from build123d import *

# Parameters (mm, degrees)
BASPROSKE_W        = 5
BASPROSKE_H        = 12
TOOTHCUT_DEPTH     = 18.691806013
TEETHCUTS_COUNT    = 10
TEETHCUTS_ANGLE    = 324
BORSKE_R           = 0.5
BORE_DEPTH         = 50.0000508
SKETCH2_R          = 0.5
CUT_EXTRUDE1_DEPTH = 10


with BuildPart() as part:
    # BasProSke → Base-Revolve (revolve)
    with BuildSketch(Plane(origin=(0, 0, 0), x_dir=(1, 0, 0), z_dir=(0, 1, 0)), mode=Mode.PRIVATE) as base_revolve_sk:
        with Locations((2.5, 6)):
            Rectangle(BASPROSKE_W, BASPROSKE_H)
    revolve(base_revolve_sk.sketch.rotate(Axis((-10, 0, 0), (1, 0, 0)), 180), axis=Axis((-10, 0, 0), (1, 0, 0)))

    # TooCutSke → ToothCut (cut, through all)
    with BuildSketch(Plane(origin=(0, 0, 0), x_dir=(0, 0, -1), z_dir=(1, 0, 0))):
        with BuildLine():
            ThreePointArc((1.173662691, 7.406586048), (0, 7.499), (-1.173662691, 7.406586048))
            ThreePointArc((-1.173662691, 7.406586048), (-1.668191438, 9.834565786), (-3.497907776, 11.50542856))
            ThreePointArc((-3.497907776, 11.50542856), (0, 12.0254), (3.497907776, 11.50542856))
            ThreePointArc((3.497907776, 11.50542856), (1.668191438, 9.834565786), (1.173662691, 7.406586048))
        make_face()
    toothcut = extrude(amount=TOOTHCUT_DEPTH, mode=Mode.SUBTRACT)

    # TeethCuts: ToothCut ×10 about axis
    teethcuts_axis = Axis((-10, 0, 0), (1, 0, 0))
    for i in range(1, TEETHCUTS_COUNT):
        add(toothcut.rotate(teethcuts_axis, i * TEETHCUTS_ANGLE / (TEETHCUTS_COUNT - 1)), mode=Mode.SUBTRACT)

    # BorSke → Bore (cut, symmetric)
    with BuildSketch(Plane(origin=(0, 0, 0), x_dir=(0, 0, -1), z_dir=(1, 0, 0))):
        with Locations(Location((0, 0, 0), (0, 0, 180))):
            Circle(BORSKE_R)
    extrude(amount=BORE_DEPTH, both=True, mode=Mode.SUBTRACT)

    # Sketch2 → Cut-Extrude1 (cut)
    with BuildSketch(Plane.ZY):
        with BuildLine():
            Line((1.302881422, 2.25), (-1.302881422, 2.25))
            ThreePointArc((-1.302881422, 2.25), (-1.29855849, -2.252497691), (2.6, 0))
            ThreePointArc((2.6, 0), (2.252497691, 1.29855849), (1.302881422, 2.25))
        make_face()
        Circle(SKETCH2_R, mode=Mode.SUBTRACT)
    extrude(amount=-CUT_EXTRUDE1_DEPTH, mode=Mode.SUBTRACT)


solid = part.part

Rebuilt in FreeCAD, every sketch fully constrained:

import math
import FreeCAD as App
import Part
import Sketcher


def add_polygon(sketch, points):
    """Adds a closed chain of lines whose ends are joined by coincident constraints."""
    first, n = sketch.GeometryCount, len(points)
    for a, b in zip(points, points[1:] + points[:1]):
        sketch.addGeometry(Part.LineSegment(App.Vector(*a, 0), App.Vector(*b, 0)), False)
    for i in range(n):
        sketch.addConstraint(Sketcher.Constraint("Coincident", first + i, 2, first + (i + 1) % n, 1))

doc = App.newDocument("Part")
body = doc.addObject("PartDesign::Body", "Body")

sketch1 = body.newObject("Sketcher::SketchObject", "Sketch")
sketch1.AttachmentSupport = (doc.getObject("XZ_Plane"), [""])
sketch1.MapMode = "FlatFace"
add_polygon(sketch1, [(0, -12), (0, 0), (5, 0), (5, -12)])
sketch1.addConstraint([
    Sketcher.Constraint("Vertical", 0),
    Sketcher.Constraint("Horizontal", 1),
    Sketcher.Constraint("Vertical", 2),
    Sketcher.Constraint("Horizontal", 3),
    Sketcher.Constraint("Coincident", 0, 2, -1, 1),
    Sketcher.Constraint("DistanceX", 1, 1, 1, 2, 5.0),
    Sketcher.Constraint("DistanceY", 0, 1, 0, 2, 12.0),
])
revolution = body.newObject("PartDesign::Revolution", "Revolution")
revolution.Profile = sketch1
revolution.ReferenceAxis = (sketch1, ["H_Axis"])
revolution.Angle = 360

sketch2 = body.newObject("Sketcher::SketchObject", "Sketch001")
sketch2.AttachmentSupport = (doc.getObject("YZ_Plane"), [""])
sketch2.MapMode = "FlatFace"
sketch2.addGeometry([
    Part.ArcOfCircle(Part.Circle(App.Vector(0, 0, 0), App.Vector(0, 0, 1), 7.499), math.radians(-9.004337), math.radians(9.004337)),
    Part.ArcOfCircle(Part.Circle(App.Vector(7.861508, -5.147709, 0), App.Vector(0, 0, 1), 4), math.radians(24.358856), math.radians(96.530411)),
    Part.ArcOfCircle(Part.Circle(App.Vector(0, 0, 0), App.Vector(0, 0, 1), 12.0254), math.radians(-16.910446), math.radians(16.910446)),
    Part.ArcOfCircle(Part.Circle(App.Vector(7.861508, 5.147709, 0), App.Vector(0, 0, 1), 4), math.radians(-96.530411), math.radians(-24.358856)),
], False)
sketch2.addConstraint([
    Sketcher.Constraint("Coincident", 0, 1, 1, 2),
    Sketcher.Constraint("Coincident", 1, 1, 2, 1),
    Sketcher.Constraint("Coincident", 2, 2, 3, 2),
    Sketcher.Constraint("Coincident", 3, 1, 0, 2),
    Sketcher.Constraint("Coincident", 0, 3, -1, 1),
    Sketcher.Constraint("Coincident", 2, 3, -1, 1),
    Sketcher.Constraint("Equal", 1, 3),
    Sketcher.Constraint("Symmetric", 1, 3, 3, 3, -1),
    Sketcher.Constraint("Radius", 1, 4.0),
    Sketcher.Constraint("Radius", 0, 7.499),
    Sketcher.Constraint("Radius", 2, 12.0254),
    Sketcher.Constraint("DistanceY", 1, 3, 1, 1, 1.649801),
    Sketcher.Constraint("DistanceX", -1, 1, 1, 3, 7.861508),
])
pocket1 = body.newObject("PartDesign::Pocket", "Pocket")
pocket1.Profile = sketch2
pocket1.Type = "ThroughAll"
pocket1.Reversed = True
doc.recompute()

polarpattern = body.newObject("PartDesign::PolarPattern", "PolarPattern")
polarpattern.Originals = [pocket1]
polarpattern.Axis = (doc.getObject("X_Axis"), [""])
polarpattern.Angle = 360
polarpattern.Occurrences = 10
body.Tip = polarpattern

sketch3 = body.newObject("Sketcher::SketchObject", "Sketch002")
sketch3.AttachmentSupport = (doc.getObject("YZ_Plane"), [""])
sketch3.MapMode = "FlatFace"
sketch3.addGeometry(Part.Circle(App.Vector(0, 0, 0), App.Vector(0, 0, 1), 0.5), False)
sketch3.addConstraint([
    Sketcher.Constraint("Coincident", 0, 3, -1, 1),
    Sketcher.Constraint("Diameter", 0, 1.0),
])
pocket2 = body.newObject("PartDesign::Pocket", "Pocket001")
pocket2.Profile = sketch3
pocket2.Length = 100.000102
pocket2.Midplane = True

sketch4 = body.newObject("Sketcher::SketchObject", "Sketch003")
sketch4.AttachmentSupport = (doc.getObject("YZ_Plane"), [""])
sketch4.MapMode = "FlatFace"
sketch4.addGeometry([
    Part.LineSegment(App.Vector(2.25, 1.302881, 0), App.Vector(2.25, -1.302881, 0)),
    Part.ArcOfCircle(Part.Circle(App.Vector(0, 0, 0), App.Vector(0, 0, 1), 2.6), math.radians(90), math.radians(329.926652)),
    Part.ArcOfCircle(Part.Circle(App.Vector(0, 0, 0), App.Vector(0, 0, 1), 2.6), math.radians(30.073348), math.radians(90)),
    Part.Circle(App.Vector(0, 0, 0), App.Vector(0, 0, 1), 0.5),
], False)
sketch4.addConstraint([
    Sketcher.Constraint("Coincident", 0, 2, 1, 2),
    Sketcher.Constraint("Tangent", 1, 1, 2, 2),
    Sketcher.Constraint("Coincident", 2, 1, 0, 1),
    Sketcher.Constraint("Vertical", 0),
    Sketcher.Constraint("Coincident", 1, 3, -1, 1),
    Sketcher.Constraint("Coincident", 3, 3, -1, 1),
    Sketcher.Constraint("Equal", 1, 2),
    Sketcher.Constraint("PointOnObject", 1, 1, -2),
    Sketcher.Constraint("Diameter", 3, 1.0),
    Sketcher.Constraint("Radius", 1, 2.6),
    Sketcher.Constraint("DistanceX", -1, 1, 0, 2, 2.25),
])
pocket3 = body.newObject("PartDesign::Pocket", "Pocket002")
pocket3.Profile = sketch4
pocket3.Length = 10
pocket3.Reversed = True

doc.recompute()
